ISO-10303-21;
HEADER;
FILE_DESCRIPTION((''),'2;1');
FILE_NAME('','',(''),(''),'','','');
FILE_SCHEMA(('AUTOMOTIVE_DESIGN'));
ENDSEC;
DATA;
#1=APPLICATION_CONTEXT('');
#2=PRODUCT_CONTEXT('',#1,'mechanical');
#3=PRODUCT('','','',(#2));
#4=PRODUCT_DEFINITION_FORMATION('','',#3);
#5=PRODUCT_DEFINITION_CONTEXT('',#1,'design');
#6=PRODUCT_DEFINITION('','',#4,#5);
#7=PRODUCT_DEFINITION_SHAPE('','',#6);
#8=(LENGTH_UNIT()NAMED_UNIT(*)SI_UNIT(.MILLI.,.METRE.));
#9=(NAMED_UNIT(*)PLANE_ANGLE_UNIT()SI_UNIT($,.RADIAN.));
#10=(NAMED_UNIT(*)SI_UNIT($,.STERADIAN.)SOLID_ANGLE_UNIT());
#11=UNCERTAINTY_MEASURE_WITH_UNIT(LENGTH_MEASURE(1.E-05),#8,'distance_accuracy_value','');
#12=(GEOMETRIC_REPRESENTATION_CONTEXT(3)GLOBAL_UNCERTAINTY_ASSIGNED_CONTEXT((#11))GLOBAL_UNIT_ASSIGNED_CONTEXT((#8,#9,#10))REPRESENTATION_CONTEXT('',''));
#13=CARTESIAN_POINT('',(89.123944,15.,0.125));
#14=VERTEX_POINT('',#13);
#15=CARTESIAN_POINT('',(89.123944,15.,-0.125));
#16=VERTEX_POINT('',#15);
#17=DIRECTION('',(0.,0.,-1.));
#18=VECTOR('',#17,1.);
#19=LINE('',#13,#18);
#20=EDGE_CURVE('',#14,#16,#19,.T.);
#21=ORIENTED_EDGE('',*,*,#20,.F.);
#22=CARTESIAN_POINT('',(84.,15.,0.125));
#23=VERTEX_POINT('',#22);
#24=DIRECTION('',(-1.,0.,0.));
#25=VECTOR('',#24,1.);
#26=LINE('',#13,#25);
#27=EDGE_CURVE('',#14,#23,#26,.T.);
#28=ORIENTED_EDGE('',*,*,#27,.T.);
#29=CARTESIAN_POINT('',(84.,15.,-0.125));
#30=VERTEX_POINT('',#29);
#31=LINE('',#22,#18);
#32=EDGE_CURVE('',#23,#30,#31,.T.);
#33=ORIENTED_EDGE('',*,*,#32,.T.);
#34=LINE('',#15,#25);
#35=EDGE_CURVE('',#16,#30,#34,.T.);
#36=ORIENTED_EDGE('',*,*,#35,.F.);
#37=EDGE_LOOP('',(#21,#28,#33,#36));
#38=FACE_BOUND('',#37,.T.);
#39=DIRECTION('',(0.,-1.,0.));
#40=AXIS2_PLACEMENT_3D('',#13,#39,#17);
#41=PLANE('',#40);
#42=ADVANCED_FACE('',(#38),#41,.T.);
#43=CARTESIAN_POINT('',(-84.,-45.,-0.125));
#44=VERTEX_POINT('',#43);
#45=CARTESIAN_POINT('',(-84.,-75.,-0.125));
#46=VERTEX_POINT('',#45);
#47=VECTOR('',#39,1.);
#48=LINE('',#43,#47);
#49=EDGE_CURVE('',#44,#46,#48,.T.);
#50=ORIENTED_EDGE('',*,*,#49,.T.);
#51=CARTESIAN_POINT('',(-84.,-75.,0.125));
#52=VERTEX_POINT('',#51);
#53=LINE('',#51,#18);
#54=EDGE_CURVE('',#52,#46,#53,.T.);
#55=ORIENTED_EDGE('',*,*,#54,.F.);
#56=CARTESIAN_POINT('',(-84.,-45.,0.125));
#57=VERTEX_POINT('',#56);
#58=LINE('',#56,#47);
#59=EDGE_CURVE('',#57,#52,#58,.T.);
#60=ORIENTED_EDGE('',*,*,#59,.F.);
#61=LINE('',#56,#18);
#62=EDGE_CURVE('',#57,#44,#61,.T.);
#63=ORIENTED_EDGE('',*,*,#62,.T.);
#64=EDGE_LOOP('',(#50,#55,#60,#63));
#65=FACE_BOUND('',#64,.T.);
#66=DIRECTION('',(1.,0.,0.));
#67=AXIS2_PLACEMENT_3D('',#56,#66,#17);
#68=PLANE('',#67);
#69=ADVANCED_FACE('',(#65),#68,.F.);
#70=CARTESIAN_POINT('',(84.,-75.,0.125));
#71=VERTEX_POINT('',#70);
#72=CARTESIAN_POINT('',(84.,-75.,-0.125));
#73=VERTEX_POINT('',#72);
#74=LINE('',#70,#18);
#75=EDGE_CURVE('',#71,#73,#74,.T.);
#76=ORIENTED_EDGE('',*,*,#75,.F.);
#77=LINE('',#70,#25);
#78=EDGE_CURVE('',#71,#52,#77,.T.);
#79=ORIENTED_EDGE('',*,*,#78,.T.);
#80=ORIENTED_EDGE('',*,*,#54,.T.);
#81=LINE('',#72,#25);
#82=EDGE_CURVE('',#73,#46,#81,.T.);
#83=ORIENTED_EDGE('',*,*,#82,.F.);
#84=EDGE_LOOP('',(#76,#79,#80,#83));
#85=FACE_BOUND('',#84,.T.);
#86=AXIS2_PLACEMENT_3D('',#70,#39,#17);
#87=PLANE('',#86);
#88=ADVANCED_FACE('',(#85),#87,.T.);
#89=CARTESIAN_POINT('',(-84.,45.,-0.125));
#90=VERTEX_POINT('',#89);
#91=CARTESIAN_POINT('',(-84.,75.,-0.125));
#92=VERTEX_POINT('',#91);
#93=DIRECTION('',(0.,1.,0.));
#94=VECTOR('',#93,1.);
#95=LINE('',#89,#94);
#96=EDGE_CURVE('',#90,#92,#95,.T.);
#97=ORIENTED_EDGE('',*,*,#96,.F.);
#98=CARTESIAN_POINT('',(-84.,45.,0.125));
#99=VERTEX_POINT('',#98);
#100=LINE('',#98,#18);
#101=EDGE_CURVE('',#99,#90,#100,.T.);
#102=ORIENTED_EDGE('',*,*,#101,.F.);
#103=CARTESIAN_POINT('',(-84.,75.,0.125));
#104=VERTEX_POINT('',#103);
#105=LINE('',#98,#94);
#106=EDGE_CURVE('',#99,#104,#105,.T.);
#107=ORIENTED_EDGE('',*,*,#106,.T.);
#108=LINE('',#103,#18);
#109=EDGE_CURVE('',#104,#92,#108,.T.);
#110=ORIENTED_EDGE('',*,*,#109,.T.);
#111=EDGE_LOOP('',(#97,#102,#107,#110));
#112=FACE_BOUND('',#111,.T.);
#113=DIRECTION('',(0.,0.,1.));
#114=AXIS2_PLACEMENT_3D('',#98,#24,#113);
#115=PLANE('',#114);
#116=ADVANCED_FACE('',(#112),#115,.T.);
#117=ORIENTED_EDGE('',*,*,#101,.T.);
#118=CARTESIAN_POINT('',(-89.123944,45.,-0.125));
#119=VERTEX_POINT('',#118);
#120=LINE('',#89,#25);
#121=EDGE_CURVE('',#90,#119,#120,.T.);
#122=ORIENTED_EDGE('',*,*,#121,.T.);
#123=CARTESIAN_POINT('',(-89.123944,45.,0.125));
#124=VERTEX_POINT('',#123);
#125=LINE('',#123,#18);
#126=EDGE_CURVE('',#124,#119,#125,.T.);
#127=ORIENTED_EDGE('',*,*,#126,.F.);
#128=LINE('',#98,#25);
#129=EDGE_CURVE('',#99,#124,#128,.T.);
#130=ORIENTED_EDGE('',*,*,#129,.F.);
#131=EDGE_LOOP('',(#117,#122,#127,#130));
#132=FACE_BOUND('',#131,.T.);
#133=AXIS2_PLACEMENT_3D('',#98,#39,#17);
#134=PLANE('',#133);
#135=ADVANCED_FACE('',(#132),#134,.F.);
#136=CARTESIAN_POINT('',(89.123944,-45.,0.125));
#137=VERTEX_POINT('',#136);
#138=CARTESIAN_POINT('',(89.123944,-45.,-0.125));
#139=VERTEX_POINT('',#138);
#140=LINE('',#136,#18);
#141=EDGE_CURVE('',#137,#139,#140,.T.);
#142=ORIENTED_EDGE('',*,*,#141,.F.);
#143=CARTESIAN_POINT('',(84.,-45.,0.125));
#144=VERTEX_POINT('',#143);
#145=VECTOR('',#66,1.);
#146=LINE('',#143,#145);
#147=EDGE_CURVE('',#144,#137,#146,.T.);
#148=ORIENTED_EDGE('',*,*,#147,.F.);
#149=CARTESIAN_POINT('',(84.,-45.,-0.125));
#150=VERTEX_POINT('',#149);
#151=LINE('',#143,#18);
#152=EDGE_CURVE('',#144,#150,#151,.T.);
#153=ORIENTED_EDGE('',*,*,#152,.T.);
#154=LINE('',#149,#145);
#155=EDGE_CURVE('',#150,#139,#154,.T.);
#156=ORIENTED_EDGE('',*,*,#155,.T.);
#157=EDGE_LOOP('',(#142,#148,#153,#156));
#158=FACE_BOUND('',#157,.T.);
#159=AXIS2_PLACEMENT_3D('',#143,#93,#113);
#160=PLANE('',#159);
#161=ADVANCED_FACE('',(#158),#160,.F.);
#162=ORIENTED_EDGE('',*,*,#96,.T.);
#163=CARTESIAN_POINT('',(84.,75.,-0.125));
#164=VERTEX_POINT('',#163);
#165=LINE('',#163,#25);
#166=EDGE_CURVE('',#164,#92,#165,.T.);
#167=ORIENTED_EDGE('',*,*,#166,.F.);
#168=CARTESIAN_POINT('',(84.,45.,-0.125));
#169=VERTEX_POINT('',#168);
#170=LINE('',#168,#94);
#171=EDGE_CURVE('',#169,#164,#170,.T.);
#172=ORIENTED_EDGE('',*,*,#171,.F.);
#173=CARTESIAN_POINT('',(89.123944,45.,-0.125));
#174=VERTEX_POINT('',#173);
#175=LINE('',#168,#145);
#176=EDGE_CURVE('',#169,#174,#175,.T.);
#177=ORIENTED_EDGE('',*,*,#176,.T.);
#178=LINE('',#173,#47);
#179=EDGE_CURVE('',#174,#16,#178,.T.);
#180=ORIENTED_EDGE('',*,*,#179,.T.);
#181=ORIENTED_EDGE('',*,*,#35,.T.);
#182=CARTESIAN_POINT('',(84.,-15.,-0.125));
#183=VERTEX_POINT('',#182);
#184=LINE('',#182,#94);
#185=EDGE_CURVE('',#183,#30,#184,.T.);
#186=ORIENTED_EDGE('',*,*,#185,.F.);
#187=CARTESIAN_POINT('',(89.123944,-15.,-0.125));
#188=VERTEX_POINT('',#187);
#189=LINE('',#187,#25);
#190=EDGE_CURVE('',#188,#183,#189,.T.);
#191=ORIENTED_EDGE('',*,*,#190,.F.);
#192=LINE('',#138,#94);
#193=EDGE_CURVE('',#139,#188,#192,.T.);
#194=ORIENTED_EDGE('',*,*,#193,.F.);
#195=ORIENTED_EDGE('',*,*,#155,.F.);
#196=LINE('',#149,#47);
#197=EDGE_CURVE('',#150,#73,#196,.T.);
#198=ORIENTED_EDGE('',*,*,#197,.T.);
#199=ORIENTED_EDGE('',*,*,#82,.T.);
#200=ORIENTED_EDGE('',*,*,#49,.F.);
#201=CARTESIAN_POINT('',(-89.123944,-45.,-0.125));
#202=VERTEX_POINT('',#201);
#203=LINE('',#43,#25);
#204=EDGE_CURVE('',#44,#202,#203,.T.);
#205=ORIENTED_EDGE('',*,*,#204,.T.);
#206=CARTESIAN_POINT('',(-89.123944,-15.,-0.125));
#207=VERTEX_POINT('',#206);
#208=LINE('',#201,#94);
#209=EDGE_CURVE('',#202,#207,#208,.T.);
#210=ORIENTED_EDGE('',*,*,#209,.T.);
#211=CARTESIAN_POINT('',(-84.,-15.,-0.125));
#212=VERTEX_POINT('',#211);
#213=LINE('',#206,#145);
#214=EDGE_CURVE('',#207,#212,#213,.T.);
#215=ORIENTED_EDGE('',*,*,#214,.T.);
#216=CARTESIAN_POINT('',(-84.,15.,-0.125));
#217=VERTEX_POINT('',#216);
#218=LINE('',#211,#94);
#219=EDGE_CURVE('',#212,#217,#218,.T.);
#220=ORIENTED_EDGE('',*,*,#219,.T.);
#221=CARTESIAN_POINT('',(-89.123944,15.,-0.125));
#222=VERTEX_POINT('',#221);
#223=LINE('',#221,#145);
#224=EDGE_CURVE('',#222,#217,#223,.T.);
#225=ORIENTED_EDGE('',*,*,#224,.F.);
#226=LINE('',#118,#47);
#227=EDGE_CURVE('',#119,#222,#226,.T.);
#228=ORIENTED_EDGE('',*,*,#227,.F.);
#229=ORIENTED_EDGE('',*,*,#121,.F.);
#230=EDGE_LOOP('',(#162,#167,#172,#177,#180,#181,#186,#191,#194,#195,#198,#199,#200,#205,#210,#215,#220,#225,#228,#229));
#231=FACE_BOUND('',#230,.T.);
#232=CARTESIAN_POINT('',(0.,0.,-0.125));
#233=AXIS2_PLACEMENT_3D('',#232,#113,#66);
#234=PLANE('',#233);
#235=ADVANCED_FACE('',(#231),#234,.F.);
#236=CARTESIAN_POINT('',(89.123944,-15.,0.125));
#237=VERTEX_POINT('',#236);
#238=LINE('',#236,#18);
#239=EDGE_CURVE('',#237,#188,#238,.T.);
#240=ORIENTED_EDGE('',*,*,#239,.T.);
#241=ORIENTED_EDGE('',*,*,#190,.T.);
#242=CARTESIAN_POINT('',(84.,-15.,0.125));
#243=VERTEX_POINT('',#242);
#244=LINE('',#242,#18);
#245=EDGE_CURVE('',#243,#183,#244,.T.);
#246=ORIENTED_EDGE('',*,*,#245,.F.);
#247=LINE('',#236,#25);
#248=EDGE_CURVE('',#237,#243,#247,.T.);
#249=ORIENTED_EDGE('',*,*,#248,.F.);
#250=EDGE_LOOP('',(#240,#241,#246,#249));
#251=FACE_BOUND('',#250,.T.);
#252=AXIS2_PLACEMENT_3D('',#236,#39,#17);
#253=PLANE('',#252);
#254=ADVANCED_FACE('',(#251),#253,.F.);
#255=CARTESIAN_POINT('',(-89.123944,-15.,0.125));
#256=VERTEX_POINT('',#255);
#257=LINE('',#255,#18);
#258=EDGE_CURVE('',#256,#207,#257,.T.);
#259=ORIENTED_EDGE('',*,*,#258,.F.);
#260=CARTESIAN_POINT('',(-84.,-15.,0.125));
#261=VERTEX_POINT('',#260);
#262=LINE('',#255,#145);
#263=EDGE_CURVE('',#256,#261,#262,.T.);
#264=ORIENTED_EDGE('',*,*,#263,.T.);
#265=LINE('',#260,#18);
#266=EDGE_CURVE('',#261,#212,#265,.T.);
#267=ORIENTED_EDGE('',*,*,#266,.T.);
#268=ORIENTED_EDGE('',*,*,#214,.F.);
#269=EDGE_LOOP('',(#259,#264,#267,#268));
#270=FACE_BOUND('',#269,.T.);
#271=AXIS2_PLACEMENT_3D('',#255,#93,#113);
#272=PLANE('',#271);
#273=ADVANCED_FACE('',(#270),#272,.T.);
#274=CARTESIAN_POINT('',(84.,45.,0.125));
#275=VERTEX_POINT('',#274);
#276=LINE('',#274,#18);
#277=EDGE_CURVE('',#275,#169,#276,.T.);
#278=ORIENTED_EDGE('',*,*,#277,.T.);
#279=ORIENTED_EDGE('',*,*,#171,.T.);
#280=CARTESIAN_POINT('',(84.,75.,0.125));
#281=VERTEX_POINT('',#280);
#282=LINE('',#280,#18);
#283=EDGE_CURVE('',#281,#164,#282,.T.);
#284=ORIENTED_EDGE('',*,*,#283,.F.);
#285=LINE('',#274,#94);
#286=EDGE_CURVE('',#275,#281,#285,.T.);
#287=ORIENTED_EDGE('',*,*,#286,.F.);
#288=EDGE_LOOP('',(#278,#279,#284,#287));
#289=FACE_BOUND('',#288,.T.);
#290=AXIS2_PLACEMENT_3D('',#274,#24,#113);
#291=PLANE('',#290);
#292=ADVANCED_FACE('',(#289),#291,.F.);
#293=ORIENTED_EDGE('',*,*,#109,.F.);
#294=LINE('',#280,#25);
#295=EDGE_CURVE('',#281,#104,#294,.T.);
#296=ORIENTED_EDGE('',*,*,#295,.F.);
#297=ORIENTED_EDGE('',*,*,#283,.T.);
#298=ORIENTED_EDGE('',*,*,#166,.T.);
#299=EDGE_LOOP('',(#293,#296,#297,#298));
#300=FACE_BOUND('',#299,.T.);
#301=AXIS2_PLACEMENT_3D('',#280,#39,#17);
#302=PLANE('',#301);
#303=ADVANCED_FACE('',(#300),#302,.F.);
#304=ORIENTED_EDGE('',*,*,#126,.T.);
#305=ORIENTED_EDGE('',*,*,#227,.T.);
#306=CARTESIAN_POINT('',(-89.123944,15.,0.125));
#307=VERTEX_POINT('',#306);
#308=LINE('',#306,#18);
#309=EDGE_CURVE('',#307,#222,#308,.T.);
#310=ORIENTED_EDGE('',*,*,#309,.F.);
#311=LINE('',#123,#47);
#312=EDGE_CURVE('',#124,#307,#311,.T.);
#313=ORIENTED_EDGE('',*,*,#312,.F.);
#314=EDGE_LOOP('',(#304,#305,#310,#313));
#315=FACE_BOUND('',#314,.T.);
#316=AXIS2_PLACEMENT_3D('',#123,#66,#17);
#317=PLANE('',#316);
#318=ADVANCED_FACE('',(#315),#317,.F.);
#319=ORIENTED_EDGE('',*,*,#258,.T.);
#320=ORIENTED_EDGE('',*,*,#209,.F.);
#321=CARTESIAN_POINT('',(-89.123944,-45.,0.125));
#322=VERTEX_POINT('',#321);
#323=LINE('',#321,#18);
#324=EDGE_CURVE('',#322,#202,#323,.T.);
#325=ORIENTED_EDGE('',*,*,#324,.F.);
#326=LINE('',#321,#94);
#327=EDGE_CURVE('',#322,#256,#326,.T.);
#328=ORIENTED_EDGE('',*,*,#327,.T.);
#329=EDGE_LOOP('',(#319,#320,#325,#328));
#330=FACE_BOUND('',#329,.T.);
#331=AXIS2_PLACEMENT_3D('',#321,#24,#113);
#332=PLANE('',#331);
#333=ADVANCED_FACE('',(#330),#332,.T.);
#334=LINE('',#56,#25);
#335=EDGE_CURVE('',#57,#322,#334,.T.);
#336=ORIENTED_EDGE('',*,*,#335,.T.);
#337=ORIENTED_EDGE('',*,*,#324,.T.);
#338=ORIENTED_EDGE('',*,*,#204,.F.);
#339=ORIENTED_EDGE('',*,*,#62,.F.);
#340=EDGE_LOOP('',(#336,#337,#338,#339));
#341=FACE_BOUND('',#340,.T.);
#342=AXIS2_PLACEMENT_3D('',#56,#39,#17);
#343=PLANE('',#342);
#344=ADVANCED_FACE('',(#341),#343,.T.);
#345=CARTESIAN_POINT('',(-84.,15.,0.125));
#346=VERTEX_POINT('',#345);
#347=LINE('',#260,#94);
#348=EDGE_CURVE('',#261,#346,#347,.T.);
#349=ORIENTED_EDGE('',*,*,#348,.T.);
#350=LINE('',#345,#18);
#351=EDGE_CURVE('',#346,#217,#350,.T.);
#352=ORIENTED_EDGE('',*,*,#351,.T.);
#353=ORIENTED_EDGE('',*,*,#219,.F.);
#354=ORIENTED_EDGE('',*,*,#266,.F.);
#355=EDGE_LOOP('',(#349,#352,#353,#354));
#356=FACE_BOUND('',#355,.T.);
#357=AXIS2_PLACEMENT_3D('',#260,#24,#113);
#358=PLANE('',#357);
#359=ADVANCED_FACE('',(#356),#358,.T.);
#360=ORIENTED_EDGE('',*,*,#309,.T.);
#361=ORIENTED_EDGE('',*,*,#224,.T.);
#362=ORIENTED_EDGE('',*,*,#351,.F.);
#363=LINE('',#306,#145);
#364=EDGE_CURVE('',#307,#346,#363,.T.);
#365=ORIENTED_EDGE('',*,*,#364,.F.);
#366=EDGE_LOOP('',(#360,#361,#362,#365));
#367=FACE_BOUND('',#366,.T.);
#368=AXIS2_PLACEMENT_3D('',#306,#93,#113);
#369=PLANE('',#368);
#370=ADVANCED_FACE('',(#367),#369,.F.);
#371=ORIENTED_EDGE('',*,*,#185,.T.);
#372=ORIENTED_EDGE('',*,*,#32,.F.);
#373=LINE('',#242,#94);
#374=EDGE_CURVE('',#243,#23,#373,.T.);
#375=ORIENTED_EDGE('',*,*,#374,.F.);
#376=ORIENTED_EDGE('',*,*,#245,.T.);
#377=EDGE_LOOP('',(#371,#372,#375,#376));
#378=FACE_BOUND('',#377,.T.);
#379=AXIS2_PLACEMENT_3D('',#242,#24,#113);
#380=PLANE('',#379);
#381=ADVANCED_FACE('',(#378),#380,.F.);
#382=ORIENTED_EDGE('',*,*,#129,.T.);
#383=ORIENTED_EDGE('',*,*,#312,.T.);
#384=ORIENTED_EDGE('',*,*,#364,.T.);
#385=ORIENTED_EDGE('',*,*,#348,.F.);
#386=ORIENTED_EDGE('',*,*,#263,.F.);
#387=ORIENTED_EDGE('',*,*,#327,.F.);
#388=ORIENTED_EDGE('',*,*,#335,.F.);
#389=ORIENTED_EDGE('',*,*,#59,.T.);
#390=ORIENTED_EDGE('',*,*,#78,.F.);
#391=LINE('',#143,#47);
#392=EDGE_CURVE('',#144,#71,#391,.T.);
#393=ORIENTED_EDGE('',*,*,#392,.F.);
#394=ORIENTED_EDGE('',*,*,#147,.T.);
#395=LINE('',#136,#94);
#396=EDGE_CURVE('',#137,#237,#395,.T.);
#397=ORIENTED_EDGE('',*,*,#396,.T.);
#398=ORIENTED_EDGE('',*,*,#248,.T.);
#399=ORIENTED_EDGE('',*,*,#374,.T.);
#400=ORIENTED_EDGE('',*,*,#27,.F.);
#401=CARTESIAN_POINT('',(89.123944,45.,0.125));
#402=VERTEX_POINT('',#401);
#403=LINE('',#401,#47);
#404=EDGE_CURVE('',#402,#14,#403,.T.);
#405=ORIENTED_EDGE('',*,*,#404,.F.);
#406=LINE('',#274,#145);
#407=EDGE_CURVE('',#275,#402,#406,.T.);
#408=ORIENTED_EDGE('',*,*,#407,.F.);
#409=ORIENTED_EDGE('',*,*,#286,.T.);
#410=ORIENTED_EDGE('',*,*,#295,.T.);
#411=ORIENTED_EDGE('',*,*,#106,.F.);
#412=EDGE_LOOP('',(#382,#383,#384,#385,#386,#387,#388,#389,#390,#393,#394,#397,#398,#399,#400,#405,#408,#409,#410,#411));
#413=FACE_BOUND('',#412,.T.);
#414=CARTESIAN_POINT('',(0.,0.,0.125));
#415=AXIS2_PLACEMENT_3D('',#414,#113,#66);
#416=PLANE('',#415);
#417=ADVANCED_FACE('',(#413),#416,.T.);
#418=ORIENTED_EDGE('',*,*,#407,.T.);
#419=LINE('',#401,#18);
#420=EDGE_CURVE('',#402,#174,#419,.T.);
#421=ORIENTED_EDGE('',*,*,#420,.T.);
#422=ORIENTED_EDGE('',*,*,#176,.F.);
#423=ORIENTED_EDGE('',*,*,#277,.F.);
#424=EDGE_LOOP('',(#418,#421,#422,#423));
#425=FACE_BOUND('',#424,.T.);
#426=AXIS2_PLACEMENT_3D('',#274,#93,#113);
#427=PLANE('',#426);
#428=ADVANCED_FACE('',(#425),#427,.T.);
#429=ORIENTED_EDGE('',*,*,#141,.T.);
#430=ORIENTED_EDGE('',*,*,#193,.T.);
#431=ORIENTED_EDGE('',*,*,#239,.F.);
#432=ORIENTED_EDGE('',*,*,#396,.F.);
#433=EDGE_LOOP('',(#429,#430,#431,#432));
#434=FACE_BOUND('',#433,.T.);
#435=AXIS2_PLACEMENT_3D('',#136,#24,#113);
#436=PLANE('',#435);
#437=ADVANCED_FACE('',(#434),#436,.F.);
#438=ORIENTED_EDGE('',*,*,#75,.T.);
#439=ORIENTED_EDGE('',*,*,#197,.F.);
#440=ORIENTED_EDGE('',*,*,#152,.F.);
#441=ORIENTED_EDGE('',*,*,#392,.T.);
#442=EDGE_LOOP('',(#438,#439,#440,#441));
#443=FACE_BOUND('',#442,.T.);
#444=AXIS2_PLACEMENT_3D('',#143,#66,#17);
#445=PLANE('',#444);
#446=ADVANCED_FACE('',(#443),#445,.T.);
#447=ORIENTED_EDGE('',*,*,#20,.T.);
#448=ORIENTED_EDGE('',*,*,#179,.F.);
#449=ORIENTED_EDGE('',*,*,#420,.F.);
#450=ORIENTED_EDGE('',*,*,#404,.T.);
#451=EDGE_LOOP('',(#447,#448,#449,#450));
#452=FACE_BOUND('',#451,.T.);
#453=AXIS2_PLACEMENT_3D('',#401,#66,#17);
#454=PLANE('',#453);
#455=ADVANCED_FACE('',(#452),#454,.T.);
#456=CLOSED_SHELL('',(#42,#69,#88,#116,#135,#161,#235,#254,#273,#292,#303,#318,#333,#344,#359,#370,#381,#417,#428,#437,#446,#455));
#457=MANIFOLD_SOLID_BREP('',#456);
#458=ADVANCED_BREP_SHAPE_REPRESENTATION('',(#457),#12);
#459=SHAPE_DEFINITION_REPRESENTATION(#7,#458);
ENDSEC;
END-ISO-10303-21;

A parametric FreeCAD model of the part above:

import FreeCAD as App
import Part
import Sketcher

V = App.Vector

doc = App.newDocument("Part")
body = doc.addObject("PartDesign::Body", "Body")

sketch1 = body.newObject("Sketcher::SketchObject", "Sketch")
sketch1.AttachmentSupport = (doc.getObject("XY_Plane"), [""])
sketch1.MapMode = "FlatFace"
sketch1.addGeometry([
    Part.LineSegment(V(-84, 45, 0), V(-89.123944, 45, 0)),
    Part.LineSegment(V(-89.123944, 45, 0), V(-89.123944, 15, 0)),
    Part.LineSegment(V(-89.123944, 15, 0), V(-84, 15, 0)),
    Part.LineSegment(V(-84, 15, 0), V(-84, -15, 0)),
    Part.LineSegment(V(-84, -15, 0), V(-89.123944, -15, 0)),
    Part.LineSegment(V(-89.123944, -15, 0), V(-89.123944, -45, 0)),
    Part.LineSegment(V(-89.123944, -45, 0), V(-84, -45, 0)),
    Part.LineSegment(V(-84, -45, 0), V(-84, -75, 0)),
    Part.LineSegment(V(-84, -75, 0), V(84, -75, 0)),
    Part.LineSegment(V(84, -75, 0), V(84, -45, 0)),
    Part.LineSegment(V(84, -45, 0), V(89.123944, -45, 0)),
    Part.LineSegment(V(89.123944, -45, 0), V(89.123944, -15, 0)),
    Part.LineSegment(V(89.123944, -15, 0), V(84, -15, 0)),
    Part.LineSegment(V(84, -15, 0), V(84, 15, 0)),
    Part.LineSegment(V(84, 15, 0), V(89.123944, 15, 0)),
    Part.LineSegment(V(89.123944, 15, 0), V(89.123944, 45, 0)),
    Part.LineSegment(V(89.123944, 45, 0), V(84, 45, 0)),
    Part.LineSegment(V(84, 45, 0), V(84, 75, 0)),
    Part.LineSegment(V(84, 75, 0), V(-84, 75, 0)),
    Part.LineSegment(V(-84, 75, 0), V(-84, 45, 0)),
], False)
sketch1.addConstraint([
    Sketcher.Constraint("Coincident", 0, 2, 1, 1),
    Sketcher.Constraint("Coincident", 1, 2, 2, 1),
    Sketcher.Constraint("Coincident", 2, 2, 3, 1),
    Sketcher.Constraint("Coincident", 3, 2, 4, 1),
    Sketcher.Constraint("Coincident", 4, 2, 5, 1),
    Sketcher.Constraint("Coincident", 5, 2, 6, 1),
    Sketcher.Constraint("Coincident", 6, 2, 7, 1),
    Sketcher.Constraint("Coincident", 7, 2, 8, 1),
    Sketcher.Constraint("Coincident", 8, 2, 9, 1),
    Sketcher.Constraint("Coincident", 9, 2, 10, 1),
    Sketcher.Constraint("Coincident", 10, 2, 11, 1),
    Sketcher.Constraint("Coincident", 11, 2, 12, 1),
    Sketcher.Constraint("Coincident", 12, 2, 13, 1),
    Sketcher.Constraint("Coincident", 13, 2, 14, 1),
    Sketcher.Constraint("Coincident", 14, 2, 15, 1),
    Sketcher.Constraint("Coincident", 15, 2, 16, 1),
    Sketcher.Constraint("Coincident", 16, 2, 17, 1),
    Sketcher.Constraint("Coincident", 17, 2, 18, 1),
    Sketcher.Constraint("Coincident", 18, 2, 19, 1),
    Sketcher.Constraint("Coincident", 19, 2, 0, 1),
    Sketcher.Constraint("Horizontal", 0),
    Sketcher.Constraint("Vertical", 1),
    Sketcher.Constraint("Horizontal", 2),
    Sketcher.Constraint("Vertical", 3),
    Sketcher.Constraint("Horizontal", 4),
    Sketcher.Constraint("Vertical", 5),
    Sketcher.Constraint("Horizontal", 6),
    Sketcher.Constraint("Vertical", 7),
    Sketcher.Constraint("Horizontal", 8),
    Sketcher.Constraint("Vertical", 9),
    Sketcher.Constraint("Horizontal", 10),
    Sketcher.Constraint("Vertical", 11),
    Sketcher.Constraint("Horizontal", 12),
    Sketcher.Constraint("Vertical", 13),
    Sketcher.Constraint("Horizontal", 14),
    Sketcher.Constraint("Vertical", 15),
    Sketcher.Constraint("Horizontal", 16),
    Sketcher.Constraint("Vertical", 17),
    Sketcher.Constraint("Horizontal", 18),
    Sketcher.Constraint("Vertical", 19),
    Sketcher.Constraint("Symmetric", 0, 2, 10, 2, -1, 1),
    Sketcher.Constraint("Symmetric", 2, 2, 12, 2, -1, 1),
    Sketcher.Constraint("Symmetric", 4, 2, 14, 2, -1, 1),
    Sketcher.Constraint("Symmetric", 6, 2, 16, 2, -1, 1),
    Sketcher.Constraint("Symmetric", 8, 2, 18, 2, -1, 1),
    Sketcher.Constraint("Symmetric", 6, 2, 9, 2, -2),
    Sketcher.Constraint("Symmetric", 4, 2, 11, 2, -2),
    Sketcher.Constraint("Vertical", 3, 2, 6, 2),
    Sketcher.Constraint("Equal", 1, 3),
    Sketcher.Constraint("Equal", 5, 7),
    Sketcher.Constraint("DistanceX", 8, 1, 8, 2, 168.0),
    Sketcher.Constraint("DistanceY", 1, 2, 1, 1, 30.0),
    Sketcher.Constraint("DistanceX", 0, 2, 0, 1, 5.123944),
])
pad1 = body.newObject("PartDesign::Pad", "Pad")
pad1.Profile = sketch1
pad1.Length = 0.25
pad1.Midplane = True

doc.recompute()
